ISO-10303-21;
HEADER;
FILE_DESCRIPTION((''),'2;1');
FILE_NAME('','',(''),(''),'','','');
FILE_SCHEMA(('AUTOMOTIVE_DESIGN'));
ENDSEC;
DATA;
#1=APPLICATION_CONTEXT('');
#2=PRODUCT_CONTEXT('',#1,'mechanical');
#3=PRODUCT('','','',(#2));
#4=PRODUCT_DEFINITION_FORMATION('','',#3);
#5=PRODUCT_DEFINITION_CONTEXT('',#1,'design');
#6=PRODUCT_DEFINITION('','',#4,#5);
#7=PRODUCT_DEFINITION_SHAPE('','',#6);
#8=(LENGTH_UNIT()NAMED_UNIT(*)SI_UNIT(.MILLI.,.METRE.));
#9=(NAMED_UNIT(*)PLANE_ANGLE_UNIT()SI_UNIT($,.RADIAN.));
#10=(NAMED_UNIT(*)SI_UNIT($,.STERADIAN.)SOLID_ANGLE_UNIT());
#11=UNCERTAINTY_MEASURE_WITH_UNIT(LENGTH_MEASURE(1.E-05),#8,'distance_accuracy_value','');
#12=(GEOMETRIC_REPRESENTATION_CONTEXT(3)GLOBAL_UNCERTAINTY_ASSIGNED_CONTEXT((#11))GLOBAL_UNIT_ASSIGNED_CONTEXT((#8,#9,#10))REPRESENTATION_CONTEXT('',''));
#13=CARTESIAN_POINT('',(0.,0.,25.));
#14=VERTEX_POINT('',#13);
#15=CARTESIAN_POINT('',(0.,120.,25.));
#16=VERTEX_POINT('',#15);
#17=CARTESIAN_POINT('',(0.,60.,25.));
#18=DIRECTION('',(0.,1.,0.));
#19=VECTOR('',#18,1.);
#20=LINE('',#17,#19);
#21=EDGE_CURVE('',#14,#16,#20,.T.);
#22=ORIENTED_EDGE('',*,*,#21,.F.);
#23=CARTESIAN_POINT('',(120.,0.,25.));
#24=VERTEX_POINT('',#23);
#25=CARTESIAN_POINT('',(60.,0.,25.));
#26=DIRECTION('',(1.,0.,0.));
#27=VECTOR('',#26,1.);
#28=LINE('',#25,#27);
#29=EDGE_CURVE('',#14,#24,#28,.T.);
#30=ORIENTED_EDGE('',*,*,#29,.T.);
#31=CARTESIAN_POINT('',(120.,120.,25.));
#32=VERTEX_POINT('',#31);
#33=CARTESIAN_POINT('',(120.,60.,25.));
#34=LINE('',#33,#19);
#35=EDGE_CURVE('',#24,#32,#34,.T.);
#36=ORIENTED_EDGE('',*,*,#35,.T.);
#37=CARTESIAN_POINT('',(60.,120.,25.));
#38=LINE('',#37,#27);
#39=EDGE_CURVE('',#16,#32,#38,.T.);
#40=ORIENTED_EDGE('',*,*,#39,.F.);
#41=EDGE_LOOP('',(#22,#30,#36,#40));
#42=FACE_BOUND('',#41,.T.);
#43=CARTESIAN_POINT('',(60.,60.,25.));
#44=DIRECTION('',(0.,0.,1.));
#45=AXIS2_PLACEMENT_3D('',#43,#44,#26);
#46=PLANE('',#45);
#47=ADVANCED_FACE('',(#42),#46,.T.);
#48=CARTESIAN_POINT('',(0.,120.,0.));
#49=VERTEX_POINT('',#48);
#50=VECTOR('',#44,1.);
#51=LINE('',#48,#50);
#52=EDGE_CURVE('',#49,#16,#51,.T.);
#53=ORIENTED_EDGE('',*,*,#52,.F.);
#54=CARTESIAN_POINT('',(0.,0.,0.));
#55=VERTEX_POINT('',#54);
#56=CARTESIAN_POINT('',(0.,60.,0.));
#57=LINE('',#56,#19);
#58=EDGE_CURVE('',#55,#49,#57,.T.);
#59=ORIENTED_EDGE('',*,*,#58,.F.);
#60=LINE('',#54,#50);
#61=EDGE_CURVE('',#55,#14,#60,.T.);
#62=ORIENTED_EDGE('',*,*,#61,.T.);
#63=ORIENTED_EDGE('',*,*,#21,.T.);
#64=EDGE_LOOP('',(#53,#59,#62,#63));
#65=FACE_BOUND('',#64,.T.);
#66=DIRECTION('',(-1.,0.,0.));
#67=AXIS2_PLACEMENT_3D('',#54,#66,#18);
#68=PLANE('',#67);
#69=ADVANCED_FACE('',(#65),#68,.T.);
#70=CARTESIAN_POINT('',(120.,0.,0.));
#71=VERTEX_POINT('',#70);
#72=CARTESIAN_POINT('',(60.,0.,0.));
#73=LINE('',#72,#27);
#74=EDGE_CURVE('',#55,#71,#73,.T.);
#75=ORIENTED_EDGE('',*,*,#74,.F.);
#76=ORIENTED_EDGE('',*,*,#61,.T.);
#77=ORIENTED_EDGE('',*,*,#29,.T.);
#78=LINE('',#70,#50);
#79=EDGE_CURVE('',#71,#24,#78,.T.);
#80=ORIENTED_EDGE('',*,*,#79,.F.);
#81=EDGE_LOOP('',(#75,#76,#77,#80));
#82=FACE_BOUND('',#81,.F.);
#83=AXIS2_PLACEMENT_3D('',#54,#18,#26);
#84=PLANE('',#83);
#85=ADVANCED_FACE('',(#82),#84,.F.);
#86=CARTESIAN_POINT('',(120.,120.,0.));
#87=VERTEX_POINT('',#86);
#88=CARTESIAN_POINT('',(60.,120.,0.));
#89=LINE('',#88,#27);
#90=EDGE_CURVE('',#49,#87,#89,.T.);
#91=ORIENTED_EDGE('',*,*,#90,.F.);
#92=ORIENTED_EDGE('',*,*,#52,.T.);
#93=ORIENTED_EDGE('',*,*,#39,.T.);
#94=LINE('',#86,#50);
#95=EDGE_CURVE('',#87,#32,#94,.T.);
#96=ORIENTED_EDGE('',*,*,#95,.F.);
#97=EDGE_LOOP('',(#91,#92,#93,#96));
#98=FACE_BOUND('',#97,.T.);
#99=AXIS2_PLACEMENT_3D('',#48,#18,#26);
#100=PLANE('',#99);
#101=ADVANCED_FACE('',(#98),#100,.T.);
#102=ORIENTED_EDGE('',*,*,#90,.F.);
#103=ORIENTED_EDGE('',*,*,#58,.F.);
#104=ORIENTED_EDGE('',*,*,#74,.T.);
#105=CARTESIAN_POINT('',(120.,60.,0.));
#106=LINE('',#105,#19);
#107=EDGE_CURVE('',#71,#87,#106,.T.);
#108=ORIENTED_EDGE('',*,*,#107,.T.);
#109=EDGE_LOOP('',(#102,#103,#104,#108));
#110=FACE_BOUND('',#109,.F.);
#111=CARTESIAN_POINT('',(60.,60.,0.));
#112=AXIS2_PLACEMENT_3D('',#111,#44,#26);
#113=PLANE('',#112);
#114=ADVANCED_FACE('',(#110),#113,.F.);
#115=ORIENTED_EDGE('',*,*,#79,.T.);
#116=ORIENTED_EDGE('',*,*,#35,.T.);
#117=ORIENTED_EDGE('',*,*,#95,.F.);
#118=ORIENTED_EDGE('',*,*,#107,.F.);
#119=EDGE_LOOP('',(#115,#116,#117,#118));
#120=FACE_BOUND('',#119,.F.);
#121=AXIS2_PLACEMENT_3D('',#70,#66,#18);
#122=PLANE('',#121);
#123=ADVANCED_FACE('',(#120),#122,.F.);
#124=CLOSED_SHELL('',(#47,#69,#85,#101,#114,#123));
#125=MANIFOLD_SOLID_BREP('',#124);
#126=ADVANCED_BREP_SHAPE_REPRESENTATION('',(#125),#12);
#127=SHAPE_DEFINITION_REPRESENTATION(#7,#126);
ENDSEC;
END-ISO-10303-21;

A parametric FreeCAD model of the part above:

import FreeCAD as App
import Part
import Sketcher
from FreeCAD import Vector

doc = App.newDocument("Part")
body = doc.addObject("PartDesign::Body", "Body")

sketch1 = doc.addObject("Sketcher::SketchObject", "Sketch")
body.addObject(sketch1)
sketch1.AttachmentSupport = (doc.XY_Plane, [""])
sketch1.MapMode = "FlatFace"
sketch1.addGeometry([
    Part.LineSegment(Vector(0, 120, 0), Vector(0, 0, 0)),
    Part.LineSegment(Vector(0, 0, 0), Vector(120, 0, 0)),
    Part.LineSegment(Vector(120, 0, 0), Vector(120, 120, 0)),
    Part.LineSegment(Vector(120, 120, 0), Vector(0, 120, 0)),
], False)
sketch1.addConstraint([
    Sketcher.Constraint("Coincident", 0, 2, 1, 1),
    Sketcher.Constraint("Coincident", 1, 2, 2, 1),
    Sketcher.Constraint("Coincident", 2, 2, 3, 1),
    Sketcher.Constraint("Coincident", 3, 2, 0, 1),
    Sketcher.Constraint("Vertical", 0),
    Sketcher.Constraint("Horizontal", 1),
    Sketcher.Constraint("Vertical", 2),
    Sketcher.Constraint("Horizontal", 3),
    Sketcher.Constraint("Coincident", 0, 2, -1, 1),
    Sketcher.Constraint("Equal", 3, 0),
    Sketcher.Constraint("DistanceX", 1, 1, 1, 2, 120.0),
])
pad1 = doc.addObject("PartDesign::Pad", "Pad")
body.addObject(pad1)
pad1.Profile = sketch1
pad1.Length = 25

doc.recompute()
